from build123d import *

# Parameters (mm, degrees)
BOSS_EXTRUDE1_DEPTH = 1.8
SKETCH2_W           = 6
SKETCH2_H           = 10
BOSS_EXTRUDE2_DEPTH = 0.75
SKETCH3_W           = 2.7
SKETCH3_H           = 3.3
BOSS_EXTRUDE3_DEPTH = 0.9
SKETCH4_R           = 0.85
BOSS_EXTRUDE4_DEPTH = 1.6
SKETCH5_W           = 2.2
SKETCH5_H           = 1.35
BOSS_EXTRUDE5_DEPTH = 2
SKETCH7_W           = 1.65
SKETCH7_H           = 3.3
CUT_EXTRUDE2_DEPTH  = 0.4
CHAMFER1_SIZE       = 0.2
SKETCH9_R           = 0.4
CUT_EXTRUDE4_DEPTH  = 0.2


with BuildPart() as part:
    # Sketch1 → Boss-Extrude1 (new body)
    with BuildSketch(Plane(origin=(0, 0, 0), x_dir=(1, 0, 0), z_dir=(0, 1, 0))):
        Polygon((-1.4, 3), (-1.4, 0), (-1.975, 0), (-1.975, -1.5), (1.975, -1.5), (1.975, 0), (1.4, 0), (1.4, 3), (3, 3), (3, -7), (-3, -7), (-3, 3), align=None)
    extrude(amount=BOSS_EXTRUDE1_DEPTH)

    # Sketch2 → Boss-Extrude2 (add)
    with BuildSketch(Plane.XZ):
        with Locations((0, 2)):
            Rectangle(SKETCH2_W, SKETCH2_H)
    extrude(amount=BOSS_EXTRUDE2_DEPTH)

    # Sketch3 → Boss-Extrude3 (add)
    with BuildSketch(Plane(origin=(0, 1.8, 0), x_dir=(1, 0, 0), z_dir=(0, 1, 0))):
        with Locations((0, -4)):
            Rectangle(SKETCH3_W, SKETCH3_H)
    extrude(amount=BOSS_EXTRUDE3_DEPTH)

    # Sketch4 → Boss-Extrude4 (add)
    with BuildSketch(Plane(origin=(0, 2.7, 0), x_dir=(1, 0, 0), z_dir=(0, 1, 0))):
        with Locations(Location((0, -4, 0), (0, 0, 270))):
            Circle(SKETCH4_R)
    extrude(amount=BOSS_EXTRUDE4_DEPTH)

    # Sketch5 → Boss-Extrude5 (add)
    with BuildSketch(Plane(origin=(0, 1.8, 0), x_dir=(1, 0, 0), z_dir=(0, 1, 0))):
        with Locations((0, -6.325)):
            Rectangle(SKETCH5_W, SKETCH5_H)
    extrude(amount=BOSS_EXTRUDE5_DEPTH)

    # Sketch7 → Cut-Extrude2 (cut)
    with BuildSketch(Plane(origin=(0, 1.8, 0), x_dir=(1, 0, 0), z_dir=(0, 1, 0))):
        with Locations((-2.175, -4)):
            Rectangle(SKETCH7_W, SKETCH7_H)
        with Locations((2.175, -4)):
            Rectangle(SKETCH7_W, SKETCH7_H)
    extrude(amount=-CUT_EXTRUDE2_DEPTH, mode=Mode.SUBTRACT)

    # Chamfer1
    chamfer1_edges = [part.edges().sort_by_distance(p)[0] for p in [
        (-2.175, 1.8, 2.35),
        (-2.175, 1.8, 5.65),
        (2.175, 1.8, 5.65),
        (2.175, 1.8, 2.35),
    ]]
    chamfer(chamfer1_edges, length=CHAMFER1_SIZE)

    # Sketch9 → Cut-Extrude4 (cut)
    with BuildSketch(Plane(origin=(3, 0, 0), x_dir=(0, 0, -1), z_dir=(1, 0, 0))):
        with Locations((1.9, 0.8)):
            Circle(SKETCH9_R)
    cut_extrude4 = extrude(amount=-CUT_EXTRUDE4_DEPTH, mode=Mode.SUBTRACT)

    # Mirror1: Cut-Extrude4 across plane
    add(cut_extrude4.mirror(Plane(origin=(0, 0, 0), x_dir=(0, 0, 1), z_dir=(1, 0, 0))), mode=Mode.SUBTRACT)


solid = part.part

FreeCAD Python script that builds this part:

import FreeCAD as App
import Part
import Sketcher

V = App.Vector
Q = App.Units.Quantity


def edges_at(feature, points):
    """Names of the edges that pass closest to the given points."""
    edges = feature.Shape.Edges
    near = lambda p: min(range(len(edges)), key=lambda i: edges[i].distToShape(Part.Vertex(*p))[0])
    return sorted({f"Edge{near(p) + 1}" for p in points})


def add_polygon(sketch, points):
    """Adds a closed chain of lines whose ends are joined by coincident constraints."""
    first, n = sketch.GeometryCount, len(points)
    for a, b in zip(points, points[1:] + points[:1]):
        sketch.addGeometry(Part.LineSegment(App.Vector(*a, 0), App.Vector(*b, 0)), False)
    for i in range(n):
        sketch.addConstraint(Sketcher.Constraint("Coincident", first + i, 2, first + (i + 1) % n, 1))

doc = App.newDocument("Part")
body = doc.addObject("PartDesign::Body", "Body")

# Sketch on XZ plane
sketch1 = body.newObject("Sketcher::SketchObject", "Sketch")
sketch1.AttachmentSupport = (doc.getObject("XZ_Plane"), [""])
sketch1.MapMode = "FlatFace"
add_polygon(sketch1, [(-1.4, 0), (-1.4, -3), (-3, -3), (-3, 7), (3, 7), (3, -3), (1.4, -3), (1.4, 0), (2, 0), (2, 1.5), (-2, 1.5), (-2, 0)])  # lines 0-11
sketch1.addConstraint(Sketcher.Constraint("Vertical", 0))
sketch1.addConstraint(Sketcher.Constraint("Horizontal", 1))
sketch1.addConstraint(Sketcher.Constraint("Vertical", 2))
sketch1.addConstraint(Sketcher.Constraint("Horizontal", 3))
sketch1.addConstraint(Sketcher.Constraint("Vertical", 4))
sketch1.addConstraint(Sketcher.Constraint("Horizontal", 5))
sketch1.addConstraint(Sketcher.Constraint("Vertical", 6))
sketch1.addConstraint(Sketcher.Constraint("Horizontal", 7))
sketch1.addConstraint(Sketcher.Constraint("Vertical", 8))
sketch1.addConstraint(Sketcher.Constraint("Horizontal", 9))
sketch1.addConstraint(Sketcher.Constraint("Vertical", 10))
sketch1.addConstraint(Sketcher.Constraint("Horizontal", 11))
sketch1.addConstraint(Sketcher.Constraint("Symmetric", 7, 2, 10, 2, -1, 1))
sketch1.addConstraint(Sketcher.Constraint("Symmetric", 1, 2, 4, 2, -2))
sketch1.addConstraint(Sketcher.Constraint("Symmetric", 6, 2, 11, 2, -2))
sketch1.addConstraint(Sketcher.Constraint("DistanceX", 3, 1, 3, 2, Q("6 mm")))
sketch1.addConstraint(Sketcher.Constraint("DistanceY", 0, 2, 0, 1, Q("3 mm")))
sketch1.addConstraint(Sketcher.Constraint("DistanceY", 2, 1, 2, 2, Q("10 mm")))
sketch1.addConstraint(Sketcher.Constraint("DistanceX", 1, 2, 1, 1, Q("1.6 mm")))
sketch1.addConstraint(Sketcher.Constraint("DistanceY", 8, 1, 8, 2, Q("1.5 mm")))
sketch1.addConstraint(Sketcher.Constraint("DistanceX", 9, 2, 9, 1, Q("3.95 mm")))
pad1 = body.newObject("PartDesign::Pad", "Pad")
pad1.Profile = sketch1
pad1.Length = 1.8
pad1.Reversed = True

# Sketch on XZ plane
sketch2 = body.newObject("Sketcher::SketchObject", "Sketch001")
sketch2.AttachmentSupport = (doc.getObject("XZ_Plane"), [""])
sketch2.MapMode = "FlatFace"
add_polygon(sketch2, [(-3, 7), (-3, -3), (3, -3), (3, 7)])  # lines 0-3
sketch2.addConstraint(Sketcher.Constraint("Vertical", 0))
sketch2.addConstraint(Sketcher.Constraint("Horizontal", 1))
sketch2.addConstraint(Sketcher.Constraint("Vertical", 2))
sketch2.addConstraint(Sketcher.Constraint("Horizontal", 3))
sketch2.addConstraint(Sketcher.Constraint("DistanceX", 1, 1, 1, 2, Q("6 mm")))
sketch2.addConstraint(Sketcher.Constraint("DistanceY", 0, 2, 0, 1, Q("10 mm")))
sketch2.addConstraint(Sketcher.Constraint("DistanceX", 0, 2, -1, 1, Q("3 mm")))
sketch2.addConstraint(Sketcher.Constraint("DistanceY", 0, 2, -1, 1, Q("3 mm")))
pad2 = body.newObject("PartDesign::Pad", "Pad001")
pad2.Profile = sketch2
pad2.Length = 0.75

# Sketch on XZ plane
sketch3 = body.newObject("Sketcher::SketchObject", "Sketch002")
sketch3.AttachmentSupport = (doc.getObject("XZ_Plane"), [""])
sketch3.MapMode = "FlatFace"
sketch3.AttachmentOffset = App.Placement(V(0, 0, -1.8), App.Rotation())
add_polygon(sketch3, [(-1.4, 2.4), (-1.4, 5.7), (1.4, 5.7), (1.4, 2.4)])  # lines 0-3
sketch3.addConstraint(Sketcher.Constraint("Vertical", 0))
sketch3.addConstraint(Sketcher.Constraint("Horizontal", 1))
sketch3.addConstraint(Sketcher.Constraint("Vertical", 2))
sketch3.addConstraint(Sketcher.Constraint("Horizontal", 3))
sketch3.addConstraint(Sketcher.Constraint("DistanceX", 1, 1, 1, 2, Q("2.7 mm")))
sketch3.addConstraint(Sketcher.Constraint("DistanceY", 0, 1, 0, 2, Q("3.3 mm")))
sketch3.addConstraint(Sketcher.Constraint("DistanceX", 0, 2, -1, 1, Q("1.35 mm")))
sketch3.addConstraint(Sketcher.Constraint("DistanceY", -1, 1, 0, 2, Q("5.65 mm")))
pad3 = body.newObject("PartDesign::Pad", "Pad002")
pad3.Profile = sketch3
pad3.Length = 0.9
pad3.Reversed = True

# Sketch on XZ plane
sketch4 = body.newObject("Sketcher::SketchObject", "Sketch003")
sketch4.AttachmentSupport = (doc.getObject("XZ_Plane"), [""])
sketch4.MapMode = "FlatFace"
sketch4.AttachmentOffset = App.Placement(V(0, 0, -2.7), App.Rotation())
sketch4.addGeometry(Part.Circle(V(0, 4, 0), V(0, 0, 1), 0.8), False)
sketch4.addConstraint(Sketcher.Constraint("PointOnObject", 0, 3, -2))
sketch4.addConstraint(Sketcher.Constraint("Diameter", 0, Q("1.7 mm")))
sketch4.addConstraint(Sketcher.Constraint("DistanceY", -1, 1, 0, 3, Q("4 mm")))
pad4 = body.newObject("PartDesign::Pad", "Pad003")
pad4.Profile = sketch4
pad4.Length = 1.6
pad4.Reversed = True

# Sketch on XZ plane
sketch5 = body.newObject("Sketcher::SketchObject", "Sketch004")
sketch5.AttachmentSupport = (doc.getObject("XZ_Plane"), [""])
sketch5.MapMode = "FlatFace"
sketch5.AttachmentOffset = App.Placement(V(0, 0, -1.8), App.Rotation())
add_polygon(sketch5, [(-1.1, 5.7), (-1.1, 7), (1.1, 7), (1.1, 5.7)])  # lines 0-3
sketch5.addConstraint(Sketcher.Constraint("Vertical", 0))
sketch5.addConstraint(Sketcher.Constraint("Horizontal", 1))
sketch5.addConstraint(Sketcher.Constraint("Vertical", 2))
sketch5.addConstraint(Sketcher.Constraint("Horizontal", 3))
sketch5.addConstraint(Sketcher.Constraint("DistanceX", 1, 1, 1, 2, Q("2.2 mm")))
sketch5.addConstraint(Sketcher.Constraint("DistanceY", -1, 1, 0, 2, Q("7 mm")))
sketch5.addConstraint(Sketcher.Constraint("DistanceY", 0, 1, 0, 2, Q("1.35 mm")))
sketch5.addConstraint(Sketcher.Constraint("DistanceX", 0, 2, -1, 1, Q("1.1 mm")))
pad5 = body.newObject("PartDesign::Pad", "Pad004")
pad5.Profile = sketch5
pad5.Length = 2
pad5.Reversed = True

# Sketch on XZ plane
sketch6 = body.newObject("Sketcher::SketchObject", "Sketch005")
sketch6.AttachmentSupport = (doc.getObject("XZ_Plane"), [""])
sketch6.MapMode = "FlatFace"
sketch6.AttachmentOffset = App.Placement(V(0, 0, -1.8), App.Rotation())
add_polygon(sketch6, [(-3, 2.4), (-3, 5.7), (-1.4, 5.7), (-1.4, 2.4)])  # lines 0-3
add_polygon(sketch6, [(1.4, 2.4), (1.4, 5.7), (3, 5.7), (3, 2.4)])  # lines 4-7
sketch6.addConstraint(Sketcher.Constraint("Vertical", 0))
sketch6.addConstraint(Sketcher.Constraint("Horizontal", 1))
sketch6.addConstraint(Sketcher.Constraint("Vertical", 2))
sketch6.addConstraint(Sketcher.Constraint("Horizontal", 3))
sketch6.addConstraint(Sketcher.Constraint("Vertical", 4))
sketch6.addConstraint(Sketcher.Constraint("Horizontal", 5))
sketch6.addConstraint(Sketcher.Constraint("Vertical", 6))
sketch6.addConstraint(Sketcher.Constraint("Horizontal", 7))
sketch6.addConstraint(Sketcher.Constraint("Symmetric", 1, 2, 4, 2, -2))
sketch6.addConstraint(Sketcher.Constraint("Symmetric", 3, 2, 6, 2, -2))
sketch6.addConstraint(Sketcher.Constraint("DistanceY", 0, 1, 0, 2, Q("3.3 mm")))
sketch6.addConstraint(Sketcher.Constraint("DistanceX", 0, 2, -1, 1, Q("3 mm")))
sketch6.addConstraint(Sketcher.Constraint("DistanceX", 1, 1, 1, 2, Q("1.65 mm")))
sketch6.addConstraint(Sketcher.Constraint("DistanceY", -1, 1, 0, 2, Q("5.65 mm")))
pocket1 = body.newObject("PartDesign::Pocket", "Pocket")
pocket1.Profile = sketch6
pocket1.Length = 0.4
pocket1.Reversed = True
doc.recompute()

chamfer = body.newObject("PartDesign::Chamfer", "Chamfer")
chamfer.Base = (pocket1, edges_at(pocket1, [
    (-2.175, 1.8, 2.35),
    (-2.175, 1.8, 5.65),
    (2.175, 1.8, 5.65),
    (2.175, 1.8, 2.35),
]))
chamfer.Size = 0.2

# Sketch on YZ plane
sketch7 = body.newObject("Sketcher::SketchObject", "Sketch006")
sketch7.AttachmentSupport = (doc.getObject("YZ_Plane"), [""])
sketch7.MapMode = "FlatFace"
sketch7.AttachmentOffset = App.Placement(V(0, 0, 3), App.Rotation())
sketch7.addGeometry(Part.Circle(V(0.8, -1.9, 0), V(0, 0, 1), 0.4), False)
sketch7.addConstraint(Sketcher.Constraint("Diameter", 0, Q("0.8 mm")))
sketch7.addConstraint(Sketcher.Constraint("DistanceX", -1, 1, 0, 3, Q("0.8 mm")))
sketch7.addConstraint(Sketcher.Constraint("DistanceY", 0, 3, -1, 1, Q("1.9 mm")))
pocket2 = body.newObject("PartDesign::Pocket", "Pocket001")
pocket2.Profile = sketch7
pocket2.Length = 0.2
doc.recompute()

mirrored = body.newObject("PartDesign::Mirrored", "Mirrored")
mirrored.Originals = [pocket2]
mirrored.MirrorPlane = (doc.getObject("YZ_Plane"), [""])
body.Tip = mirrored

doc.recompute()
